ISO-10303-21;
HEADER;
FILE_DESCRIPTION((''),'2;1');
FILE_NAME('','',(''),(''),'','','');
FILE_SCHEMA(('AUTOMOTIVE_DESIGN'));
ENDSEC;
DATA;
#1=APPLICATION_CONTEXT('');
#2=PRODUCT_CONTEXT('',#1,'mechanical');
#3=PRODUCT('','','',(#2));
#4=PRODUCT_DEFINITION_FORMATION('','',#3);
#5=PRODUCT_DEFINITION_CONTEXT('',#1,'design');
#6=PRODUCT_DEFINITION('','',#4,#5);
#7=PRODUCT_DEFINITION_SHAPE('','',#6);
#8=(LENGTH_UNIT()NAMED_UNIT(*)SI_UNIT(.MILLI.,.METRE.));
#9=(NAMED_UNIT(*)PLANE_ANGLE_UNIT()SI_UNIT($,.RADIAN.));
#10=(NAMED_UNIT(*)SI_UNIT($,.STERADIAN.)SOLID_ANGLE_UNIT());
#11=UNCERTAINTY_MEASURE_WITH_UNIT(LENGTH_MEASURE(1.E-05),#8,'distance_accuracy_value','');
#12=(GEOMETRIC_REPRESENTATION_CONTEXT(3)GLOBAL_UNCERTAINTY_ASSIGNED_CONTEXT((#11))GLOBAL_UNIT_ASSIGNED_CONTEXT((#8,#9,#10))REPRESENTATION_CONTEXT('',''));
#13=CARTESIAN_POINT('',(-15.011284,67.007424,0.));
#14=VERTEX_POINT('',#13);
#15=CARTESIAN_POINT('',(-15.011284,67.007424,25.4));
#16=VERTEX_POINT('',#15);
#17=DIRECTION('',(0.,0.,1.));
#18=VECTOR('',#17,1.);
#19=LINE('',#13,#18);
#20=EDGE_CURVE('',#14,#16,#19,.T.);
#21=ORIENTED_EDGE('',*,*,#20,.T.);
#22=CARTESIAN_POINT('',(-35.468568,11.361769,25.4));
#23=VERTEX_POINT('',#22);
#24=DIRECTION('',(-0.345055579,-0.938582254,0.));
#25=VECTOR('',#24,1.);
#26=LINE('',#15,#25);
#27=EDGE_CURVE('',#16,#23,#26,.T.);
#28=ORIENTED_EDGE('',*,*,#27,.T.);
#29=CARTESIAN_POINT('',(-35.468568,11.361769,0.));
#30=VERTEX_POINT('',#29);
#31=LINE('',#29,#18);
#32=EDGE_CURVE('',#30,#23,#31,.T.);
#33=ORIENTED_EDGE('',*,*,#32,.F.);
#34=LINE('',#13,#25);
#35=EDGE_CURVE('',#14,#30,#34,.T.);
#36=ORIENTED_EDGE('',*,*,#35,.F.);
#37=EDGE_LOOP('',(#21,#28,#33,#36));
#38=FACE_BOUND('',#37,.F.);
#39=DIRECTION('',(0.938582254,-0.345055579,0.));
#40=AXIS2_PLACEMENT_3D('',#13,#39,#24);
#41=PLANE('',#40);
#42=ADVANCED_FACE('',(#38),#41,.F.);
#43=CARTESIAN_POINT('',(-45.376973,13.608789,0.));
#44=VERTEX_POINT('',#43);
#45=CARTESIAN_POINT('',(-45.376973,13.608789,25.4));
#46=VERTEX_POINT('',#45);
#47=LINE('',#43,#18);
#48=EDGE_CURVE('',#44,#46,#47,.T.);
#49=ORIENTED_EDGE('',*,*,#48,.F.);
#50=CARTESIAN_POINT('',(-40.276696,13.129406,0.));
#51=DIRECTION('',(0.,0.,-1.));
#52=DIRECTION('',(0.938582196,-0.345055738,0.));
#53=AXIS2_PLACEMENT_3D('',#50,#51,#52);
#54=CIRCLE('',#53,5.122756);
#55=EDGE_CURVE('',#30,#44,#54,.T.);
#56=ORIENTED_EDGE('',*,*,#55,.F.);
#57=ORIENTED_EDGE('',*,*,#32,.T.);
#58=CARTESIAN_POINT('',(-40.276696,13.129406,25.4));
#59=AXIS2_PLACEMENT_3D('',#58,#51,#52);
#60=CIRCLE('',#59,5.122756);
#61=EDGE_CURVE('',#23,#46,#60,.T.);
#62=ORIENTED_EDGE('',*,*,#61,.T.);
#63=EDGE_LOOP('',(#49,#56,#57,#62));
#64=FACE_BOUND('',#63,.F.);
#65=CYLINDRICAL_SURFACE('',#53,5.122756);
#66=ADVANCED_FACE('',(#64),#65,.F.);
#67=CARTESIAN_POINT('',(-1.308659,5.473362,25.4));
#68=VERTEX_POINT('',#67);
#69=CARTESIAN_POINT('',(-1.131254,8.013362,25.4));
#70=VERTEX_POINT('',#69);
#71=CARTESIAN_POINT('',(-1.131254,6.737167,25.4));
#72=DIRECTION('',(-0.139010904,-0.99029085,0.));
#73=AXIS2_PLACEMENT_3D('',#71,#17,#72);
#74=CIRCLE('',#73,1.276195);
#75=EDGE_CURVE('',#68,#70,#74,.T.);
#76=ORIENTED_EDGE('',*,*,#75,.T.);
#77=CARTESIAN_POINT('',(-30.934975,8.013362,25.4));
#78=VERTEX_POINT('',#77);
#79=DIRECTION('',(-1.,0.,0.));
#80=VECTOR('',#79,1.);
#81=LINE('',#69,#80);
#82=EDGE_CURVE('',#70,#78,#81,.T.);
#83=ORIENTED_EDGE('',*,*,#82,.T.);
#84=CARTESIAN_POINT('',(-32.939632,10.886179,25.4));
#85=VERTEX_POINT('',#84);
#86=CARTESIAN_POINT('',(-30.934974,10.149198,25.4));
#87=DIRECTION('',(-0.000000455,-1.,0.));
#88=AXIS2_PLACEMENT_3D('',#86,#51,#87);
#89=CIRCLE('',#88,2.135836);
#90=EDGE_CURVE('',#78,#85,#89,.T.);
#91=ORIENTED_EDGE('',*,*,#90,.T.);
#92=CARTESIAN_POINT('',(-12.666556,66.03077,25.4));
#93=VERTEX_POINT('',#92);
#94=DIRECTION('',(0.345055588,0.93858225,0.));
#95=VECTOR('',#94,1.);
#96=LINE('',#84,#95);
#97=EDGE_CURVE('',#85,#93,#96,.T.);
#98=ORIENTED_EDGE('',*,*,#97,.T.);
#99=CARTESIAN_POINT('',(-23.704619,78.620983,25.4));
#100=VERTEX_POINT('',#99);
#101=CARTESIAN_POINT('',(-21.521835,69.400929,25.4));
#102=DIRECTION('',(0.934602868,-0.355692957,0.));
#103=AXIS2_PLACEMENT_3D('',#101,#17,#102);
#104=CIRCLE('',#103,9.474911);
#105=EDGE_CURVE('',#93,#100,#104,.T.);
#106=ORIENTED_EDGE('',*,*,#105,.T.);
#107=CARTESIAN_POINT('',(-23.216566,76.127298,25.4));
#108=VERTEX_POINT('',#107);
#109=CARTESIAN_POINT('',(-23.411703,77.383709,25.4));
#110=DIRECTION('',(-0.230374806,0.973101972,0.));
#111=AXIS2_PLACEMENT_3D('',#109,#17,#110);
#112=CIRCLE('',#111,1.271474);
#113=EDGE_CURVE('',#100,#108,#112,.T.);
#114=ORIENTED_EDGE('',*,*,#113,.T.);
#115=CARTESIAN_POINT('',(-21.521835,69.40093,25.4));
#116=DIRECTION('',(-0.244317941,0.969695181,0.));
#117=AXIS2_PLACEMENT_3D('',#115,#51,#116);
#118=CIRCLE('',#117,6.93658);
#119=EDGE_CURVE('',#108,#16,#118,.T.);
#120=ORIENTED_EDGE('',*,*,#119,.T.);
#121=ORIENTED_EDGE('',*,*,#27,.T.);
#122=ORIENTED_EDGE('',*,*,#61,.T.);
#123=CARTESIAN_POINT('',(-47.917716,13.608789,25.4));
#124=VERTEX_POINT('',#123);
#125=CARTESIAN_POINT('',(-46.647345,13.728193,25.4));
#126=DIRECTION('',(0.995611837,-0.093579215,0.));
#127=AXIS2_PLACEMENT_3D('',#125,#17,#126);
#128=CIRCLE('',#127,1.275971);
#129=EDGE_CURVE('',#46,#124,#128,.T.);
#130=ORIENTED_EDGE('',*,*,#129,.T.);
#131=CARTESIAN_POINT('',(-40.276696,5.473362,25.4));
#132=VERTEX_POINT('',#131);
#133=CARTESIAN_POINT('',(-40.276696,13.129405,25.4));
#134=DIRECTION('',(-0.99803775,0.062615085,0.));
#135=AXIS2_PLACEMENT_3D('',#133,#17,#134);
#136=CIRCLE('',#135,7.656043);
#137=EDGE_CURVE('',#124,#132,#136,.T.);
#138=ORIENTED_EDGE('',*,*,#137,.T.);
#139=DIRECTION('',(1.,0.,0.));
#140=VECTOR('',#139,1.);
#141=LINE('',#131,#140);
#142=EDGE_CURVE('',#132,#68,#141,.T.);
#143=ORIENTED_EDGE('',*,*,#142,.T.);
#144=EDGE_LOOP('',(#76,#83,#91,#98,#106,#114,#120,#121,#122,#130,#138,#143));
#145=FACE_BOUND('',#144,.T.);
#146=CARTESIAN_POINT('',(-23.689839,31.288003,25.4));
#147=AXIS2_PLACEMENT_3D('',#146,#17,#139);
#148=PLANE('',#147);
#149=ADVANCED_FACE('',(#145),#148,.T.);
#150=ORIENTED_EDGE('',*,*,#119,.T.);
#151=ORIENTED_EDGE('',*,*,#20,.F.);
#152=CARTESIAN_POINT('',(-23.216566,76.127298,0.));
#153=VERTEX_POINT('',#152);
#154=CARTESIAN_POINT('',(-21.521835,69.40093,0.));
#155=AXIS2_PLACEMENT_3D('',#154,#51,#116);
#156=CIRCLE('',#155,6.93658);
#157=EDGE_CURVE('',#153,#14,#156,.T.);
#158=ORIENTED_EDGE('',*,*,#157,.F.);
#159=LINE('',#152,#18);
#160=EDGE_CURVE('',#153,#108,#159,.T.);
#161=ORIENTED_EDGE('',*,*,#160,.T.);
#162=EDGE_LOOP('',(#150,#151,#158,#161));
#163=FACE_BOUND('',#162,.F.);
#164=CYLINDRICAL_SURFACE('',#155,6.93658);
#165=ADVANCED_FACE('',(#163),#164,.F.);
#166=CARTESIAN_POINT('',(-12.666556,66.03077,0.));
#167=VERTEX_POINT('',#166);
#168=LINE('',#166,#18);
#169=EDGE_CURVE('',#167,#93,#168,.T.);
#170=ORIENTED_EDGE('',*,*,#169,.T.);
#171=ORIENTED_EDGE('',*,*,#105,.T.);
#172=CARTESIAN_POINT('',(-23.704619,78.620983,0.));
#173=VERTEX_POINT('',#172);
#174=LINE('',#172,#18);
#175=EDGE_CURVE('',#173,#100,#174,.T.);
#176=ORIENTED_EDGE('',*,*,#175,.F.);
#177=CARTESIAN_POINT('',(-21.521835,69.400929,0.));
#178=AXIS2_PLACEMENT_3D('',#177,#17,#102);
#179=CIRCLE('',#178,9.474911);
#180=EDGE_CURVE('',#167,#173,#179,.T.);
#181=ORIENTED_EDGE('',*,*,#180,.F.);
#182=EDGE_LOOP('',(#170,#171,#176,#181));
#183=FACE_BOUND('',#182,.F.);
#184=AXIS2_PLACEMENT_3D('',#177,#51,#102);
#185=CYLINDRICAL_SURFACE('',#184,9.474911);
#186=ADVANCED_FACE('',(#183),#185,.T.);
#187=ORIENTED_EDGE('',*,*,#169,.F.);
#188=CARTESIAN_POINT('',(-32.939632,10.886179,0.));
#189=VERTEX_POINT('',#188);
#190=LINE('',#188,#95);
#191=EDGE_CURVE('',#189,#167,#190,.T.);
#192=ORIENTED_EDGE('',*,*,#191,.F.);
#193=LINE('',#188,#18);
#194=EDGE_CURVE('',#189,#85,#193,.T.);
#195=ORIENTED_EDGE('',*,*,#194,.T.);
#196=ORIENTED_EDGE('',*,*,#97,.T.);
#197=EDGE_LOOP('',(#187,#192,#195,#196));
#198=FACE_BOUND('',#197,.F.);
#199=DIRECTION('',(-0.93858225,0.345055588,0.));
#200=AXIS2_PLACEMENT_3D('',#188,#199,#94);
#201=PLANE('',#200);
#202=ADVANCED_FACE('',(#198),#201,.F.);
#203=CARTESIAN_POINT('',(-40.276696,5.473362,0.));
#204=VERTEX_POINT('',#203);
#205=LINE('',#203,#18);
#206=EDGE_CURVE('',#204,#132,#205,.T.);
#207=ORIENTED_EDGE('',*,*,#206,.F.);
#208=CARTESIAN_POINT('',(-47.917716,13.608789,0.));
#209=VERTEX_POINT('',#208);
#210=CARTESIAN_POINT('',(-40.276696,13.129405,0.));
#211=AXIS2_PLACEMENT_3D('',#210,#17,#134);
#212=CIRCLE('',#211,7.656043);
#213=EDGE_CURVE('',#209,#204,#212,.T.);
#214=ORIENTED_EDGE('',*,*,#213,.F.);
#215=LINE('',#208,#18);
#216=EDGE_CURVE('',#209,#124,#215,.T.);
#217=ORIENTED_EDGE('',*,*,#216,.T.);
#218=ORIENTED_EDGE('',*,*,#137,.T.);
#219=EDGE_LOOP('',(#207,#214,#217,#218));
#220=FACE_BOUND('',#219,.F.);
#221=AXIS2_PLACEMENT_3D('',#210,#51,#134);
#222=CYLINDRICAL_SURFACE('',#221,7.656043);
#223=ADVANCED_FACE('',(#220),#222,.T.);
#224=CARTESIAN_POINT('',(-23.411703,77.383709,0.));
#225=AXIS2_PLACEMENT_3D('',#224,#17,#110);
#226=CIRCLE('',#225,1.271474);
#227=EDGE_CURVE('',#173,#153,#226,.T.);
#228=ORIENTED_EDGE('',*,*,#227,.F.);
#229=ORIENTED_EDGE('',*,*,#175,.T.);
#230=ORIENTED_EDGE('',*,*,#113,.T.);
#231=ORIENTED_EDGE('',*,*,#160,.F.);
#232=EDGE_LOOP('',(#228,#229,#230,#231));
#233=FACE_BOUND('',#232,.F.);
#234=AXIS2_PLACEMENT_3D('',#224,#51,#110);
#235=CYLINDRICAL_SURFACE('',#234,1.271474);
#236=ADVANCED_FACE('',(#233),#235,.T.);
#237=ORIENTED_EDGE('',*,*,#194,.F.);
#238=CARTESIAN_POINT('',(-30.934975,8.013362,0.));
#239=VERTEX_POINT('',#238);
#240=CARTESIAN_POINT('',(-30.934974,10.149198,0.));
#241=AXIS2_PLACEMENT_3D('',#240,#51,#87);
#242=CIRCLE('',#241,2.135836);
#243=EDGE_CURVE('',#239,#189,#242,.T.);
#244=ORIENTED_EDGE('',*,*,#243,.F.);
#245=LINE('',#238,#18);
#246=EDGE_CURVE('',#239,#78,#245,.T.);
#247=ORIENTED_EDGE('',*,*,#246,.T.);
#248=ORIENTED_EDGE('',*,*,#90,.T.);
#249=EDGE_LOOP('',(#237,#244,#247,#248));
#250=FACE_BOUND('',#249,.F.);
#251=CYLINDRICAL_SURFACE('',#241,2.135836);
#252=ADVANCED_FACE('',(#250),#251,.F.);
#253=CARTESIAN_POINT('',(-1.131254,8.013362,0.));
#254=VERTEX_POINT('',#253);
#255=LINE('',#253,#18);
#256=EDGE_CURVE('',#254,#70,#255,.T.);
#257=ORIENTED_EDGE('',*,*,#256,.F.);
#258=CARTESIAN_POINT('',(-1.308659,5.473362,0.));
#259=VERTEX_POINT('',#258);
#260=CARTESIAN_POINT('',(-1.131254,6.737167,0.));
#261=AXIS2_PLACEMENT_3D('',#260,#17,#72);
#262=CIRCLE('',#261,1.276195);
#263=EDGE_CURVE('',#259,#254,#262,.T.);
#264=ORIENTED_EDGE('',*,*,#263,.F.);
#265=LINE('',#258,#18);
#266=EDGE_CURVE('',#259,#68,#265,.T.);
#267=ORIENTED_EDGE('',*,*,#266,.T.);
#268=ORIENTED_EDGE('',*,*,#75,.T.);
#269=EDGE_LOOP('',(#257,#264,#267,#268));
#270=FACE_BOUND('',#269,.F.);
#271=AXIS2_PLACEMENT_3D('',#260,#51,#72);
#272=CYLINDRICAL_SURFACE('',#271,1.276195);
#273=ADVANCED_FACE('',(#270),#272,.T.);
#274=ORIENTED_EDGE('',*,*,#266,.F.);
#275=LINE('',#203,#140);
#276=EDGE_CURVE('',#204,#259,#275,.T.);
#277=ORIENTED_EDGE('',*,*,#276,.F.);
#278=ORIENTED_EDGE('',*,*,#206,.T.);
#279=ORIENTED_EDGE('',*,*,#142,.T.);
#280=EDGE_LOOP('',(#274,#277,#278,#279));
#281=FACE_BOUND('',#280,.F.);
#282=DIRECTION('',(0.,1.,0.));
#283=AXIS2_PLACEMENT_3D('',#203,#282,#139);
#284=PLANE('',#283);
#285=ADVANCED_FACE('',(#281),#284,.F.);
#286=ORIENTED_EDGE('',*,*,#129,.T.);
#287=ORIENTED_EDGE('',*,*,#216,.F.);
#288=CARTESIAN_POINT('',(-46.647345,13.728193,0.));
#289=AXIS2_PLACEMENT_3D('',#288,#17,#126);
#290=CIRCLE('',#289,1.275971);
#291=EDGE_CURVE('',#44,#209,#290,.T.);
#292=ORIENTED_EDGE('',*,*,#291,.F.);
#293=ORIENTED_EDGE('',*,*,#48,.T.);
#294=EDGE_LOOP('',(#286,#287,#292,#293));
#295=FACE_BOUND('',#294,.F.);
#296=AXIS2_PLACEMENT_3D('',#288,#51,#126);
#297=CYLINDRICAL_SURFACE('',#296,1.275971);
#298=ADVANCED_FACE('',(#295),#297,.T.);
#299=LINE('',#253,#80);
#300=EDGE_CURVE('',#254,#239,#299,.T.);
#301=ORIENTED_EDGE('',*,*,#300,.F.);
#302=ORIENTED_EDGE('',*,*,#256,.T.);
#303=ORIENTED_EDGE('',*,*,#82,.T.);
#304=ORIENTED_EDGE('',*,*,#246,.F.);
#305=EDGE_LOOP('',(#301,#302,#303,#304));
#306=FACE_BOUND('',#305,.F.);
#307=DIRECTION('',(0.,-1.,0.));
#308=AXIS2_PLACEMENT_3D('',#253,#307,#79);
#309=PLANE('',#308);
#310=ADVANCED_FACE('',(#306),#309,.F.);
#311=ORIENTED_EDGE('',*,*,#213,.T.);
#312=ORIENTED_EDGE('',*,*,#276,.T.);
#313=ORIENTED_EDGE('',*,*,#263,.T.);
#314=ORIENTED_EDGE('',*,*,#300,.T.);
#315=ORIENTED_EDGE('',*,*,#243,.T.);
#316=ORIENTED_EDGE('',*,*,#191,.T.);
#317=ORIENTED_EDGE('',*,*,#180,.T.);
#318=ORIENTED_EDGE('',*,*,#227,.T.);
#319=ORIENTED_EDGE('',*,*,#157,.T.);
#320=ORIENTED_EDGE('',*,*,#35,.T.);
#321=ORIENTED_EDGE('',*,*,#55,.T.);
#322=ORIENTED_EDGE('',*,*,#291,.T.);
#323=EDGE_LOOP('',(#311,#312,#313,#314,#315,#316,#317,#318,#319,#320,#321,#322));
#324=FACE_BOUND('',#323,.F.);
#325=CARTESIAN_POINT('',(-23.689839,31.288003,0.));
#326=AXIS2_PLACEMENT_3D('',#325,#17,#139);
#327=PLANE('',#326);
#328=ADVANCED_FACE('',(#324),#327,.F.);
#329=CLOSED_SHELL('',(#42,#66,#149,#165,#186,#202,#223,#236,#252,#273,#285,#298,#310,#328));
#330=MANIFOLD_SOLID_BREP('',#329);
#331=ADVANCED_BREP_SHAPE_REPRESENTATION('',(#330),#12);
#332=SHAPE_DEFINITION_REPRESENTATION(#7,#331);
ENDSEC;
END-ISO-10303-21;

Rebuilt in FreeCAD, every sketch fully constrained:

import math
import FreeCAD as App
import Part
import Sketcher
from FreeCAD import Vector
Q = App.Units.Quantity

doc = App.newDocument("Part")
body = doc.addObject("PartDesign::Body", "Body")

sketch1 = body.newObject("Sketcher::SketchObject", "Sketch")
sketch1.AttachmentSupport = (doc.getObject("XY_Plane"), [""])
sketch1.MapMode = "FlatFace"
sketch1.addGeometry(Part.ArcOfCircle(Part.Circle(Vector(-40.276696, 13.129405, 0), Vector(0, 0, 1), 7.656043), math.radians(176.410072), math.radians(269.999999)), False)
sketch1.addGeometry(Part.LineSegment(Vector(-40.276696, 5.473362, 0), Vector(-1.308659, 5.473362, 0)), False)
sketch1.addGeometry(Part.ArcOfCircle(Part.Circle(Vector(-1.131254, 6.737167, 0), Vector(0, 0, 1), 1.276195), math.radians(-97.990616), math.radians(90.000003)), False)
sketch1.addGeometry(Part.LineSegment(Vector(-1.131254, 8.013362, 0), Vector(-30.934975, 8.013362, 0)), False)
sketch1.addGeometry(Part.ArcOfCircle(Part.Circle(Vector(-30.934974, 10.149198, 0), Vector(0, 0, 1), 2.135836), math.radians(159.814838), math.radians(269.999974)), False)
sketch1.addGeometry(Part.LineSegment(Vector(-32.939632, 10.886179, 0), Vector(-12.666556, 66.03077, 0)), False)
sketch1.addGeometry(Part.ArcOfCircle(Part.Circle(Vector(-21.521835, 69.400929, 0), Vector(0, 0, 1), 9.474911), math.radians(-20.83592), math.radians(103.319159)), False)
sketch1.addGeometry(Part.ArcOfCircle(Part.Circle(Vector(-23.411703, 77.383709, 0), Vector(0, 0, 1), 1.271474), math.radians(103.319139), math.radians(278.828264)), False)
sketch1.addGeometry(Part.ArcOfCircle(Part.Circle(Vector(-21.521835, 69.40093, 0), Vector(0, 0, 1), 6.93658), math.radians(-20.185189), math.radians(104.14153)), False)
sketch1.addGeometry(Part.LineSegment(Vector(-15.011284, 67.007424, 0), Vector(-35.468568, 11.361769, 0)), False)
sketch1.addGeometry(Part.ArcOfCircle(Part.Circle(Vector(-40.276696, 13.129406, 0), Vector(0, 0, 1), 5.122756), math.radians(174.63045), math.radians(339.814802)), False)
sketch1.addGeometry(Part.ArcOfCircle(Part.Circle(Vector(-46.647345, 13.728193, 0), Vector(0, 0, 1), 1.275971), math.radians(-5.369551), math.radians(185.369551)), False)
sketch1.addConstraint(Sketcher.Constraint("Coincident", 0, 2, 1, 1))
sketch1.addConstraint(Sketcher.Constraint("Coincident", 1, 2, 2, 1))
sketch1.addConstraint(Sketcher.Constraint("Coincident", 2, 2, 3, 1))
sketch1.addConstraint(Sketcher.Constraint("Coincident", 3, 2, 4, 2))
sketch1.addConstraint(Sketcher.Constraint("Coincident", 4, 1, 5, 1))
sketch1.addConstraint(Sketcher.Constraint("Coincident", 5, 2, 6, 1))
sketch1.addConstraint(Sketcher.Constraint("Coincident", 6, 2, 7, 1))
sketch1.addConstraint(Sketcher.Constraint("Coincident", 7, 2, 8, 2))
sketch1.addConstraint(Sketcher.Constraint("Coincident", 8, 1, 9, 1))
sketch1.addConstraint(Sketcher.Constraint("Coincident", 9, 2, 10, 2))
sketch1.addConstraint(Sketcher.Constraint("Coincident", 10, 1, 11, 1))
sketch1.addConstraint(Sketcher.Constraint("Coincident", 11, 2, 0, 1))
sketch1.addConstraint(Sketcher.Constraint("Horizontal", 1))
sketch1.addConstraint(Sketcher.Constraint("Horizontal", 3))
sketch1.addConstraint(Sketcher.Constraint("Coincident", 8, 3, 6, 3))
sketch1.addConstraint(Sketcher.Constraint("Coincident", 10, 3, 0, 3))
sketch1.addConstraint(Sketcher.Constraint("DistanceY", 1, 2, 2, 2, Q("0.1 in")))
sketch1.addConstraint(Sketcher.Constraint("Radius", 6, Q("9.474911 mm")))
sketch1.addConstraint(Sketcher.Constraint("Radius", 8, Q("6.93658 mm")))
sketch1.addConstraint(Sketcher.Constraint("Radius", 11, Q("1.275971 mm")))
sketch1.addConstraint(Sketcher.Constraint("Radius", 0, Q("7.656043 mm")))
sketch1.addConstraint(Sketcher.Constraint("Radius", 2, Q("1.276195 mm")))
sketch1.addConstraint(Sketcher.Constraint("Radius", 4, Q("2.135836 mm")))
sketch1.addConstraint(Sketcher.Constraint("Radius", 7, Q("1.271474 mm")))
sketch1.addConstraint(Sketcher.Constraint("Radius", 10, Q("5.122756 mm")))
sketch1.addConstraint(Sketcher.Constraint("DistanceX", 3, 2, 3, 1, Q("29.803721 mm")))
sketch1.addConstraint(Sketcher.Constraint("DistanceY", -1, 1, 7, 2, Q("76.127298 mm")))
sketch1.addConstraint(Sketcher.Constraint("DistanceX", 1, 1, 1, 2, Q("38.968037 mm")))
sketch1.addConstraint(Sketcher.Constraint("DistanceY", -1, 1, 6, 3, Q("69.400929 mm")))
sketch1.addConstraint(Sketcher.Constraint("DistanceX", 1, 2, -1, 1, Q("1.308659 mm")))
sketch1.addConstraint(Sketcher.Constraint("DistanceY", -1, 1, 2, 2, Q("8.013362 mm")))
sketch1.addConstraint(Sketcher.Constraint("DistanceX", 4, 1, -1, 1, Q("32.939632 mm")))
sketch1.addConstraint(Sketcher.Constraint("DistanceY", -1, 1, 4, 1, Q("10.886179 mm")))
sketch1.addConstraint(Sketcher.Constraint("DistanceY", -1, 1, 5, 2, Q("66.03077 mm")))
sketch1.addConstraint(Sketcher.Constraint("DistanceX", 6, 2, -1, 1, Q("23.704619 mm")))
sketch1.addConstraint(Sketcher.Constraint("DistanceY", -1, 1, 9, 2, Q("11.361769 mm")))
sketch1.addConstraint(Sketcher.Constraint("DistanceY", -1, 1, 10, 1, Q("13.608789 mm")))
sketch1.addConstraint(Sketcher.Constraint("DistanceY", -1, 1, 11, 2, Q("13.608789 mm")))
sketch1.addConstraint(Sketcher.Constraint("DistanceX", 0, 3, 2, 3, Q("39.145442 mm")))
sketch1.addConstraint(Sketcher.Constraint("DistanceX", 0, 3, 6, 3, Q("18.754861 mm")))
sketch1.addConstraint(Sketcher.Constraint("DistanceX", 4, 3, 2, 2, Q("29.80372 mm")))
sketch1.addConstraint(Sketcher.Constraint("DistanceX", 6, 3, 8, 1, Q("6.510551 mm")))
pad1 = body.newObject("PartDesign::Pad", "Pad")
pad1.Profile = sketch1
pad1.Length = Q("1 in")

doc.recompute()
